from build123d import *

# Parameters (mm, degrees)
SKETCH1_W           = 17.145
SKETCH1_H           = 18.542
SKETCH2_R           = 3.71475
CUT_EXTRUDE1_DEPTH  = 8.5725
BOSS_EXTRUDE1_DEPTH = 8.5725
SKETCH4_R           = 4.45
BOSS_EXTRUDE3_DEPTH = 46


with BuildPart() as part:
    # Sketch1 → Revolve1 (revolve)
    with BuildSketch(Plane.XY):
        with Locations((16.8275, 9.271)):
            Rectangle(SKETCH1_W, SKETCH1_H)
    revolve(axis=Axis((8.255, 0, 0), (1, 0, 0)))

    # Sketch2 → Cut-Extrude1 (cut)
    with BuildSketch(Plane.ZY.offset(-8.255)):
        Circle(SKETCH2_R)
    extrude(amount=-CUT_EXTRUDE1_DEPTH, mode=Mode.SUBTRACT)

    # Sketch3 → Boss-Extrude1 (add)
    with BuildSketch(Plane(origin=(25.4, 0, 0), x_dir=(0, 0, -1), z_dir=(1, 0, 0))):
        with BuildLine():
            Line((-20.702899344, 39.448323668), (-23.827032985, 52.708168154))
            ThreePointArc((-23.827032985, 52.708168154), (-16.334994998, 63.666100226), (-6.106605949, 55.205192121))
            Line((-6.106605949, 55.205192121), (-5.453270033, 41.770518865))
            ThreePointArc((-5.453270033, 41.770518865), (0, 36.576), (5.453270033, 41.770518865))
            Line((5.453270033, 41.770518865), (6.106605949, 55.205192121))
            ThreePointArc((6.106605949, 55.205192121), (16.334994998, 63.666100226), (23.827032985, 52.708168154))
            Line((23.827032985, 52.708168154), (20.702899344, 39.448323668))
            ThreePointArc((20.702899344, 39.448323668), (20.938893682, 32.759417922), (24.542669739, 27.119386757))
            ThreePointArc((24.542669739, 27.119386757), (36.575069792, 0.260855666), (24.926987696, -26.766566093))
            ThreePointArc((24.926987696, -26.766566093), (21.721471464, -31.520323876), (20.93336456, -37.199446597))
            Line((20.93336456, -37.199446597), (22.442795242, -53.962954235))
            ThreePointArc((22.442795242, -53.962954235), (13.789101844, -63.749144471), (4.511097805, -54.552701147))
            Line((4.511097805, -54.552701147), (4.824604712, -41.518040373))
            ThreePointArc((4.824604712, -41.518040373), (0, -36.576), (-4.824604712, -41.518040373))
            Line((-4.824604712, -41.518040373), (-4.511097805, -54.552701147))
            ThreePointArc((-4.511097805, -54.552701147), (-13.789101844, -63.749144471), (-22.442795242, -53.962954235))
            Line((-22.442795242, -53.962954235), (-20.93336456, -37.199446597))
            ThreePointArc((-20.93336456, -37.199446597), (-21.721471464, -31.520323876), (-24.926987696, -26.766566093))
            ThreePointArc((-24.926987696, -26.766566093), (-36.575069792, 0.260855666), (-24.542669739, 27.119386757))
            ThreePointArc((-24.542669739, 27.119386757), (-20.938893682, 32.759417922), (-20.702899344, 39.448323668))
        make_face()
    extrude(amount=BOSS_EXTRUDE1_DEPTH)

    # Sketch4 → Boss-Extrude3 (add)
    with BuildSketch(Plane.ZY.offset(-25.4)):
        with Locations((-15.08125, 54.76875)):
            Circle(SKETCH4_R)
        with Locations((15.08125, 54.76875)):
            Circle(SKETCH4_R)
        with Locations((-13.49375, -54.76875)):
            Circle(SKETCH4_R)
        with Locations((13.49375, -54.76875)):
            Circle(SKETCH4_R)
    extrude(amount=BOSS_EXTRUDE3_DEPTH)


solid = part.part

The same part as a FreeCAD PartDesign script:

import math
import FreeCAD as App
import Part
import Sketcher
from FreeCAD import Vector
Q = App.Units.Quantity


def add_polygon(sketch, points):
    """Adds a closed chain of lines whose ends are joined by coincident constraints."""
    first, n = sketch.GeometryCount, len(points)
    for a, b in zip(points, points[1:] + points[:1]):
        sketch.addGeometry(Part.LineSegment(App.Vector(*a, 0), App.Vector(*b, 0)), False)
    for i in range(n):
        sketch.addConstraint(Sketcher.Constraint("Coincident", first + i, 2, first + (i + 1) % n, 1))

doc = App.newDocument("Part")
body = doc.addObject("PartDesign::Body", "Body")

# Sketch on XY plane
sketch1 = doc.addObject("Sketcher::SketchObject", "Sketch")
body.addObject(sketch1)
sketch1.AttachmentSupport = (doc.XY_Plane, [""])
sketch1.MapMode = "FlatFace"
add_polygon(sketch1, [(8, 19), (8, 0), (25, 0), (25, 19)])  # lines 0-3
sketch1.addConstraint(Sketcher.Constraint("Vertical", 0))
sketch1.addConstraint(Sketcher.Constraint("Horizontal", 1))
sketch1.addConstraint(Sketcher.Constraint("Vertical", 2))
sketch1.addConstraint(Sketcher.Constraint("Horizontal", 3))
sketch1.addConstraint(Sketcher.Constraint("PointOnObject", 0, 2, -1))
sketch1.addConstraint(Sketcher.Constraint("DistanceX", -1, 1, 1, 2, Q("1 in")))
sketch1.addConstraint(Sketcher.Constraint("DistanceY", 0, 2, 0, 1, Q("0.73 in")))
sketch1.addConstraint(Sketcher.Constraint("DistanceX", 1, 1, 1, 2, Q("0.675 in")))
revolution = doc.addObject("PartDesign::Revolution", "Revolution")
body.addObject(revolution)
revolution.Profile = sketch1
revolution.ReferenceAxis = (sketch1, ["H_Axis"])
revolution.Angle = 360

# Sketch on YZ plane
sketch2 = doc.addObject("Sketcher::SketchObject", "Sketch001")
body.addObject(sketch2)
sketch2.AttachmentSupport = (doc.YZ_Plane, [""])
sketch2.MapMode = "FlatFace"
sketch2.AttachmentOffset = App.Placement(Vector(0, 0, 0.325 * 25.4), App.Rotation())
sketch2.addGeometry(Part.Circle(Vector(0, 0, 0), Vector(0, 0, 1), 3.7), False)
sketch2.addConstraint(Sketcher.Constraint("Coincident", 0, 3, -1, 1))
sketch2.addConstraint(Sketcher.Constraint("Diameter", 0, Q("0.2925 in")))
pocket1 = doc.addObject("PartDesign::Pocket", "Pocket")
body.addObject(pocket1)
pocket1.Profile = sketch2
pocket1.Length = Q("0.3375 in")
pocket1.Reversed = True

# Sketch on YZ plane
sketch3 = doc.addObject("Sketcher::SketchObject", "Sketch002")
body.addObject(sketch3)
sketch3.AttachmentSupport = (doc.YZ_Plane, [""])
sketch3.MapMode = "FlatFace"
sketch3.AttachmentOffset = App.Placement(Vector(0, 0, 1 * 25.4), App.Rotation())
sketch3.addGeometry(Part.LineSegment(Vector(52.7, 23.8, 0), Vector(39.4, 20.7, 0)), False)
sketch3.addGeometry(Part.ArcOfCircle(Part.Circle(Vector(36.5, 33.1, 0), Vector(0, 0, 1), 12.7), math.radians(-138), math.radians(-77)), False)
sketch3.addGeometry(Part.ArcOfCircle(Part.Circle(Vector(0, 0, 0), Vector(0, 0, 1), 36.6), math.radians(42), math.radians(137)), False)
sketch3.addGeometry(Part.ArcOfCircle(Part.Circle(Vector(-36.1, 33.6, 0), Vector(0, 0, 1), 12.7), math.radians(-95), math.radians(-43)), False)
sketch3.addGeometry(Part.LineSegment(Vector(-37.2, 20.9, 0), Vector(-54, 22.4, 0)), False)
sketch3.addGeometry(Part.ArcOfCircle(Part.Circle(Vector(-54.8, 13.5, 0), Vector(0, 0, 1), 9), math.radians(85), math.radians(271)), False)
sketch3.addGeometry(Part.LineSegment(Vector(-54.6, 4.5, 0), Vector(-41.5, 4.8, 0)), False)
sketch3.addGeometry(Part.ArcOfCircle(Part.Circle(Vector(-41.4, 0, 0), Vector(0, 0, 1), 4.8), math.radians(-91), math.radians(91)), False)
sketch3.addGeometry(Part.LineSegment(Vector(-41.5, -4.8, 0), Vector(-54.6, -4.5, 0)), False)
sketch3.addGeometry(Part.ArcOfCircle(Part.Circle(Vector(-54.8, -13.5, 0), Vector(0, 0, 1), 9), math.radians(89), math.radians(275)), False)
sketch3.addGeometry(Part.LineSegment(Vector(-54, -22.4, 0), Vector(-37.2, -20.9, 0)), False)
sketch3.addGeometry(Part.ArcOfCircle(Part.Circle(Vector(-36.1, -33.6, 0), Vector(0, 0, 1), 12.7), math.radians(43), math.radians(95)), False)
sketch3.addGeometry(Part.ArcOfCircle(Part.Circle(Vector(0, 0, 0), Vector(0, 0, 1), 36.6), math.radians(-137), math.radians(-42)), False)
sketch3.addGeometry(Part.ArcOfCircle(Part.Circle(Vector(36.5, -33.1, 0), Vector(0, 0, 1), 12.7), math.radians(77), math.radians(138)), False)
sketch3.addGeometry(Part.LineSegment(Vector(39.4, -20.7, 0), Vector(52.7, -23.8, 0)), False)
sketch3.addGeometry(Part.ArcOfCircle(Part.Circle(Vector(54.8, -15.1, 0), Vector(0, 0, 1), 9), math.radians(-103), math.radians(87)), False)
sketch3.addGeometry(Part.LineSegment(Vector(55.2, -6.1, 0), Vector(41.8, -5.5, 0)), False)
sketch3.addGeometry(Part.ArcOfCircle(Part.Circle(Vector(42, 0, 0), Vector(0, 0, 1), 5.5), math.radians(93), math.radians(267)), False)
sketch3.addGeometry(Part.LineSegment(Vector(41.8, 5.5, 0), Vector(55.2, 6.1, 0)), False)
sketch3.addGeometry(Part.ArcOfCircle(Part.Circle(Vector(54.8, 15.1, 0), Vector(0, 0, 1), 9), math.radians(-87), math.radians(103)), False)
sketch3.addConstraint(Sketcher.Constraint("Tangent", 0, 2, 1, 2))
sketch3.addConstraint(Sketcher.Constraint("Tangent", 1, 1, 2, 1))
sketch3.addConstraint(Sketcher.Constraint("Tangent", 2, 2, 3, 2))
sketch3.addConstraint(Sketcher.Constraint("Tangent", 3, 1, 4, 1))
sketch3.addConstraint(Sketcher.Constraint("Tangent", 4, 2, 5, 1))
sketch3.addConstraint(Sketcher.Constraint("Tangent", 5, 2, 6, 1))
sketch3.addConstraint(Sketcher.Constraint("Tangent", 6, 2, 7, 2))
sketch3.addConstraint(Sketcher.Constraint("Tangent", 7, 1, 8, 1))
sketch3.addConstraint(Sketcher.Constraint("Tangent", 8, 2, 9, 1))
sketch3.addConstraint(Sketcher.Constraint("Tangent", 9, 2, 10, 1))
sketch3.addConstraint(Sketcher.Constraint("Tangent", 10, 2, 11, 2))
sketch3.addConstraint(Sketcher.Constraint("Tangent", 11, 1, 12, 1))
sketch3.addConstraint(Sketcher.Constraint("Tangent", 12, 2, 13, 2))
sketch3.addConstraint(Sketcher.Constraint("Tangent", 13, 1, 14, 1))
sketch3.addConstraint(Sketcher.Constraint("Tangent", 14, 2, 15, 1))
sketch3.addConstraint(Sketcher.Constraint("Tangent", 15, 2, 16, 1))
sketch3.addConstraint(Sketcher.Constraint("Tangent", 16, 2, 17, 2))
sketch3.addConstraint(Sketcher.Constraint("Tangent", 17, 1, 18, 1))
sketch3.addConstraint(Sketcher.Constraint("Tangent", 18, 2, 19, 1))
sketch3.addConstraint(Sketcher.Constraint("Tangent", 19, 2, 0, 1))
sketch3.addConstraint(Sketcher.Constraint("Coincident", 2, 3, -1, 1))
sketch3.addConstraint(Sketcher.Constraint("Coincident", 12, 3, -1, 1))
sketch3.addConstraint(Sketcher.Constraint("Equal", 1, 3))
sketch3.addConstraint(Sketcher.Constraint("Equal", 5, 9))
sketch3.addConstraint(Sketcher.Constraint("Equal", 3, 11))
sketch3.addConstraint(Sketcher.Constraint("Equal", 2, 12))
sketch3.addConstraint(Sketcher.Constraint("Equal", 11, 13))
sketch3.addConstraint(Sketcher.Constraint("Equal", 9, 15))
sketch3.addConstraint(Sketcher.Constraint("Equal", 15, 19))
sketch3.addConstraint(Sketcher.Constraint("Symmetric", 5, 3, 9, 3, -1))
sketch3.addConstraint(Sketcher.Constraint("Symmetric", 15, 3, 19, 3, -1))
sketch3.addConstraint(Sketcher.Constraint("PointOnObject", 7, 3, -1))
sketch3.addConstraint(Sketcher.Constraint("PointOnObject", 17, 3, -1))
sketch3.addConstraint(Sketcher.Constraint("Vertical", 3, 3, 11, 3))
sketch3.addConstraint(Sketcher.Constraint("Vertical", 1, 3, 13, 3))
sketch3.addConstraint(Sketcher.Constraint("Radius", 1, Q("0.5 in")))
sketch3.addConstraint(Sketcher.Constraint("Radius", 2, Q("1.44 in")))
sketch3.addConstraint(Sketcher.Constraint("Radius", 7, Q("0.19 in")))
sketch3.addConstraint(Sketcher.Constraint("DistanceX", 7, 3, -1, 1, Q("1.63 in")))
sketch3.addConstraint(Sketcher.Constraint("DistanceX", 5, 3, -1, 1, Q("2.15625 in")))
sketch3.addConstraint(Sketcher.Constraint("DistanceY", -1, 1, 5, 3, Q("0.53125 in")))
sketch3.addConstraint(Sketcher.Constraint("DistanceX", -1, 1, 15, 3, Q("2.15625 in")))
sketch3.addConstraint(Sketcher.Constraint("DistanceY", 15, 3, -1, 1, Q("0.59375 in")))
sketch3.addConstraint(Sketcher.Constraint("Radius", 5, Q("8.98525 mm")))
sketch3.addConstraint(Sketcher.Constraint("Radius", 17, Q("5.459715 mm")))
sketch3.addConstraint(Sketcher.Constraint("DistanceY", -1, 1, 0, 2, Q("20.702899 mm")))
sketch3.addConstraint(Sketcher.Constraint("Distance", 16, Q("13.45055 mm")))
sketch3.addConstraint(Sketcher.Constraint("DistanceY", -1, 1, 3, 3, Q("33.582192 mm")))
pad1 = doc.addObject("PartDesign::Pad", "Pad")
body.addObject(pad1)
pad1.Profile = sketch3
pad1.Length = Q("0.3375 in")

# Sketch on YZ plane
sketch4 = doc.addObject("Sketcher::SketchObject", "Sketch003")
body.addObject(sketch4)
sketch4.AttachmentSupport = (doc.YZ_Plane, [""])
sketch4.MapMode = "FlatFace"
sketch4.AttachmentOffset = App.Placement(Vector(0, 0, 1 * 25.4), App.Rotation())
sketch4.addGeometry(Part.Circle(Vector(54.8, -15.1, 0), Vector(0, 0, 1), 4.5), False)
sketch4.addGeometry(Part.Circle(Vector(54.8, 15.1, 0), Vector(0, 0, 1), 4.5), False)
sketch4.addGeometry(Part.Circle(Vector(-54.8, -13.5, 0), Vector(0, 0, 1), 4.5), False)
sketch4.addGeometry(Part.Circle(Vector(-54.8, 13.5, 0), Vector(0, 0, 1), 4.5), False)
sketch4.addConstraint(Sketcher.Constraint("Equal", 0, 1))
sketch4.addConstraint(Sketcher.Constraint("Equal", 1, 2))
sketch4.addConstraint(Sketcher.Constraint("Equal", 2, 3))
sketch4.addConstraint(Sketcher.Constraint("Symmetric", 0, 3, 1, 3, -1))
sketch4.addConstraint(Sketcher.Constraint("Symmetric", 2, 3, 3, 3, -1))
sketch4.addConstraint(Sketcher.Constraint("Diameter", 0, Q("8.9 mm")))
sketch4.addConstraint(Sketcher.Constraint("DistanceX", -1, 1, 0, 3, Q("2.15625 in")))
sketch4.addConstraint(Sketcher.Constraint("DistanceY", 0, 3, -1, 1, Q("0.59375 in")))
sketch4.addConstraint(Sketcher.Constraint("DistanceX", 2, 3, -1, 1, Q("2.15625 in")))
sketch4.addConstraint(Sketcher.Constraint("DistanceY", 2, 3, -1, 1, Q("0.53125 in")))
pad2 = doc.addObject("PartDesign::Pad", "Pad001")
body.addObject(pad2)
pad2.Profile = sketch4
pad2.Length = 46
pad2.Reversed = True

doc.recompute()
